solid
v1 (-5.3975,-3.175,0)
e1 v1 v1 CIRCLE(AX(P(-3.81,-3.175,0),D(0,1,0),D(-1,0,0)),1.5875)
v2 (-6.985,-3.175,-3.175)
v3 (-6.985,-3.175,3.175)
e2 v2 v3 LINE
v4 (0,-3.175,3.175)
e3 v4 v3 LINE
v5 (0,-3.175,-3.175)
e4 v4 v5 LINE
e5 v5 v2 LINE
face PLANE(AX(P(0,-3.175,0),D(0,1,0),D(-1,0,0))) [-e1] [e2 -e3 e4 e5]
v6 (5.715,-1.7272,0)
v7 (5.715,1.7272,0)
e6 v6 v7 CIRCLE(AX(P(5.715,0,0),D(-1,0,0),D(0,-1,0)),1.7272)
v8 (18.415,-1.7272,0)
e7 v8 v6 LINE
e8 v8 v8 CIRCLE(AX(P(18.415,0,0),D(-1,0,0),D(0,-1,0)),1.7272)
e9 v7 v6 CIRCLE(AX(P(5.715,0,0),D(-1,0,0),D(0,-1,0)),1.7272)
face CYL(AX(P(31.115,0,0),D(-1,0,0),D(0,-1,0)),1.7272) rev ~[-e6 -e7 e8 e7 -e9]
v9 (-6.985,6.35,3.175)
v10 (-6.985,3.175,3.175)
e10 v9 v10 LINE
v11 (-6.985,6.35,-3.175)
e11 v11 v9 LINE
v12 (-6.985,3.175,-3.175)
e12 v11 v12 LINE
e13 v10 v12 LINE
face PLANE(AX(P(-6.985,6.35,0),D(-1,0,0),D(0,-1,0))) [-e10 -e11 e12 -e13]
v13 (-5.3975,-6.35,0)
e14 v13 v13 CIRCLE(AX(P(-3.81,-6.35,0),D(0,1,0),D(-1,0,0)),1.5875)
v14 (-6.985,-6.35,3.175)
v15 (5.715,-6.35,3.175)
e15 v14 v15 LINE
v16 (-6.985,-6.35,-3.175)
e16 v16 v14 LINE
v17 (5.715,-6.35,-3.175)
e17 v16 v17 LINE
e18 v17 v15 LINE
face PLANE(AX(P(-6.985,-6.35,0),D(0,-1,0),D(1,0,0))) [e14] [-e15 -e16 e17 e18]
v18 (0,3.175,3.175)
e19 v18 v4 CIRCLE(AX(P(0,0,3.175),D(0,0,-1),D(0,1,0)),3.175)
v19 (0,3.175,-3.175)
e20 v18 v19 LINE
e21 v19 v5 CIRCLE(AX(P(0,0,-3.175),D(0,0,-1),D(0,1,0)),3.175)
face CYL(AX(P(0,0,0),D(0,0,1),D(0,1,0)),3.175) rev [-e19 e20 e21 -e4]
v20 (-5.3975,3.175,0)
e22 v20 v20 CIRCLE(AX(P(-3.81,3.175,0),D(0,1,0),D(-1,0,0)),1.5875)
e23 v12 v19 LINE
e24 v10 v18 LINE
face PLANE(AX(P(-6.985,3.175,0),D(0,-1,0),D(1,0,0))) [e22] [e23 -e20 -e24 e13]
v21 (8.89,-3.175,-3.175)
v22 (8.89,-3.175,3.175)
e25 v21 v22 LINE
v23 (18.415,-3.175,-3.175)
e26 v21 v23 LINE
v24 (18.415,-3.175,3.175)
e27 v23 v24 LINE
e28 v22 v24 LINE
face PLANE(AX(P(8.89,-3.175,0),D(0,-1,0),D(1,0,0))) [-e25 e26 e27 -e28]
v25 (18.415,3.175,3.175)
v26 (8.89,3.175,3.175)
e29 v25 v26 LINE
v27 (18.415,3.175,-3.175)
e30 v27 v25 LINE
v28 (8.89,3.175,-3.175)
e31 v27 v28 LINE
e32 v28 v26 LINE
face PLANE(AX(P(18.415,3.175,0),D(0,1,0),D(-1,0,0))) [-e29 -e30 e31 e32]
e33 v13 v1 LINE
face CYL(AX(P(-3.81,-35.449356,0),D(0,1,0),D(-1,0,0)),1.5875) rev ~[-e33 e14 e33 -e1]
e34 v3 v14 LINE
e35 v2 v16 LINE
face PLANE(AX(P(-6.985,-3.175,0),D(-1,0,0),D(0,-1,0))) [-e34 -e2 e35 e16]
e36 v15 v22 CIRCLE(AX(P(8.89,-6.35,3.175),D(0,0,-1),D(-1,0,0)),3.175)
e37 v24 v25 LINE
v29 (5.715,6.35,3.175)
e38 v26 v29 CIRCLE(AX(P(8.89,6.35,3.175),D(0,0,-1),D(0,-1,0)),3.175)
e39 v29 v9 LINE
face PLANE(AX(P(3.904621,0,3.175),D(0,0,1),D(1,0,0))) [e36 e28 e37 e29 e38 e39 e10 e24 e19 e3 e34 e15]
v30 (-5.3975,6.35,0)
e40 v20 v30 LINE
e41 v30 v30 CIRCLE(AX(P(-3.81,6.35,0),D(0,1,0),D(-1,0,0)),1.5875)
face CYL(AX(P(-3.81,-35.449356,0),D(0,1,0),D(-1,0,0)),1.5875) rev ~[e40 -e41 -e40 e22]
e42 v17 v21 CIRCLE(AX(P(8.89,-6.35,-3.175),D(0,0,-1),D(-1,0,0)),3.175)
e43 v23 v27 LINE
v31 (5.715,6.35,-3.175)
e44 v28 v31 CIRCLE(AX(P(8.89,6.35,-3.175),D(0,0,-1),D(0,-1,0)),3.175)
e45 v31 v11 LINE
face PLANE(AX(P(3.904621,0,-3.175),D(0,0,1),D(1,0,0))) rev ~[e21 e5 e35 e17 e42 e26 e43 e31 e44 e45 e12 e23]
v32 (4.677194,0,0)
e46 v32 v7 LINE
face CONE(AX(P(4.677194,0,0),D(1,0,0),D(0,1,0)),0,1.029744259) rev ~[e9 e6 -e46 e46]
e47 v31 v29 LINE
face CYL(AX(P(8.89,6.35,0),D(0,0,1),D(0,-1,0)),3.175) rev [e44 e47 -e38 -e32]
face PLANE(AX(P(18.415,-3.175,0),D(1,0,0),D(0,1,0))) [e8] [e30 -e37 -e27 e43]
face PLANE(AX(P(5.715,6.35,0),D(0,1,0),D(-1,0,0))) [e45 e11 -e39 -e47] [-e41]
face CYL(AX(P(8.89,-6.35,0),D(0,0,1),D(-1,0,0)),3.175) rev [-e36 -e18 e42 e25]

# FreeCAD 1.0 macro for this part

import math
import FreeCAD as App
import Part
import Sketcher
Q = App.Units.Quantity

doc = App.newDocument("Part")
body = doc.addObject("PartDesign::Body", "Body")

# Sketch on XY plane
sketch1 = body.newObject("Sketcher::SketchObject", "Sketch")
sketch1.AttachmentSupport = (doc.getObject("XY_Plane"), [""])
sketch1.MapMode = "FlatFace"
sketch1.addGeometry(Part.LineSegment(App.Vector(0, -3.2, 0), App.Vector(-7, -3.2, 0)), False)
sketch1.addGeometry(Part.LineSegment(App.Vector(-7, -3.2, 0), App.Vector(-7, -6.3, 0)), False)
sketch1.addGeometry(Part.LineSegment(App.Vector(-7, -6.3, 0), App.Vector(5.7, -6.3, 0)), False)
sketch1.addGeometry(Part.ArcOfCircle(Part.Circle(App.Vector(8.9, -6.3, 0), App.Vector(0, 0, 1), 3.2), math.radians(90), math.radians(180)), False)
sketch1.addGeometry(Part.LineSegment(App.Vector(8.9, -3.2, 0), App.Vector(18.4, -3.2, 0)), False)
sketch1.addGeometry(Part.LineSegment(App.Vector(18.4, -3.2, 0), App.Vector(18.4, 3.2, 0)), False)
sketch1.addGeometry(Part.LineSegment(App.Vector(18.4, 3.2, 0), App.Vector(8.9, 3.2, 0)), False)
sketch1.addGeometry(Part.ArcOfCircle(Part.Circle(App.Vector(8.9, 6.3, 0), App.Vector(0, 0, 1), 3.2), math.radians(180), math.radians(270)), False)
sketch1.addGeometry(Part.LineSegment(App.Vector(5.7, 6.3, 0), App.Vector(-7, 6.3, 0)), False)
sketch1.addGeometry(Part.LineSegment(App.Vector(-7, 6.3, 0), App.Vector(-7, 3.2, 0)), False)
sketch1.addGeometry(Part.LineSegment(App.Vector(-7, 3.2, 0), App.Vector(0, 3.2, 0)), False)
sketch1.addGeometry(Part.ArcOfCircle(Part.Circle(App.Vector(0, 0, 0), App.Vector(0, 0, 1), 3.2), math.radians(-90), math.radians(90)), False)
sketch1.addConstraint(Sketcher.Constraint("Coincident", 0, 2, 1, 1))
sketch1.addConstraint(Sketcher.Constraint("Coincident", 1, 2, 2, 1))
sketch1.addConstraint(Sketcher.Constraint("Coincident", 2, 2, 3, 2))
sketch1.addConstraint(Sketcher.Constraint("Tangent", 3, 1, 4, 1))
sketch1.addConstraint(Sketcher.Constraint("Coincident", 4, 2, 5, 1))
sketch1.addConstraint(Sketcher.Constraint("Coincident", 5, 2, 6, 1))
sketch1.addConstraint(Sketcher.Constraint("Tangent", 6, 2, 7, 2))
sketch1.addConstraint(Sketcher.Constraint("Coincident", 7, 1, 8, 1))
sketch1.addConstraint(Sketcher.Constraint("Coincident", 8, 2, 9, 1))
sketch1.addConstraint(Sketcher.Constraint("Coincident", 9, 2, 10, 1))
sketch1.addConstraint(Sketcher.Constraint("Tangent", 10, 2, 11, 2))
sketch1.addConstraint(Sketcher.Constraint("Tangent", 11, 1, 0, 1))
sketch1.addConstraint(Sketcher.Constraint("Horizontal", 0))
sketch1.addConstraint(Sketcher.Constraint("Vertical", 1))
sketch1.addConstraint(Sketcher.Constraint("Horizontal", 2))
sketch1.addConstraint(Sketcher.Constraint("Horizontal", 4))
sketch1.addConstraint(Sketcher.Constraint("Vertical", 5))
sketch1.addConstraint(Sketcher.Constraint("Horizontal", 6))
sketch1.addConstraint(Sketcher.Constraint("Horizontal", 8))
sketch1.addConstraint(Sketcher.Constraint("Vertical", 9))
sketch1.addConstraint(Sketcher.Constraint("Horizontal", 10))
sketch1.addConstraint(Sketcher.Constraint("Coincident", 11, 3, -1, 1))
sketch1.addConstraint(Sketcher.Constraint("Equal", 3, 7))
sketch1.addConstraint(Sketcher.Constraint("Equal", 7, 11))
sketch1.addConstraint(Sketcher.Constraint("Symmetric", 3, 3, 7, 3, -1))
sketch1.addConstraint(Sketcher.Constraint("Symmetric", 1, 2, 8, 2, -1))
sketch1.addConstraint(Sketcher.Constraint("Horizontal", 3, 3, 1, 2))
sketch1.addConstraint(Sketcher.Constraint("Horizontal", 0, 2, 3, 1))
sketch1.addConstraint(Sketcher.Constraint("DistanceX", 2, 1, 2, 2, Q("0.5 in")))
sketch1.addConstraint(Sketcher.Constraint("Radius", 3, Q("0.125 in")))
sketch1.addConstraint(Sketcher.Constraint("DistanceX", 2, 2, 4, 2, Q("0.5 in")))
sketch1.addConstraint(Sketcher.Constraint("DistanceX", 0, 2, 0, 1, Q("0.275 in")))
pad1 = body.newObject("PartDesign::Pad", "Pad")
pad1.Profile = sketch1
pad1.Length = Q("0.25 in")
pad1.Midplane = True

# Sketch on YZ plane
sketch2 = body.newObject("Sketcher::SketchObject", "Sketch001")
sketch2.AttachmentSupport = (doc.getObject("YZ_Plane"), [""])
sketch2.MapMode = "FlatFace"
sketch2.AttachmentOffset = App.Placement(App.Vector(0, 0, 0.725 * 25.4), App.Rotation())
sketch2.addGeometry(Part.Circle(App.Vector(0, 0, 0), App.Vector(0, 0, 1), 1.7), False)
sketch2.addConstraint(Sketcher.Constraint("Coincident", 0, 3, -1, 1))
sketch2.addConstraint(Sketcher.Constraint("Diameter", 0, Q("0.136 in")))
doc.recompute()
hole = body.newObject("PartDesign::Hole", "Hole")
hole.Profile = sketch2
hole.ThreadType = "None"
hole.Diameter = Q("0.136 in")
hole.DepthType = "Dimension"
hole.Depth = Q("0.5 in")
hole.DrillPoint = "Angled"
hole.DrillPointAngle = 118

# Sketch on XZ plane
sketch3 = body.newObject("Sketcher::SketchObject", "Sketch002")
sketch3.AttachmentSupport = (doc.getObject("XZ_Plane"), [""])
sketch3.MapMode = "FlatFace"
sketch3.AttachmentOffset = App.Placement(App.Vector(0, 0, 0.25 * 25.4), App.Rotation())
sketch3.addGeometry(Part.Circle(App.Vector(-3.8, 0, 0), App.Vector(0, 0, 1), 1.6), False)
sketch3.addConstraint(Sketcher.Constraint("PointOnObject", 0, 3, -1))
sketch3.addConstraint(Sketcher.Constraint("Diameter", 0, Q("0.125 in")))
sketch3.addConstraint(Sketcher.Constraint("DistanceX", 0, 3, -1, 1, Q("0.15 in")))
doc.recompute()
hole2 = body.newObject("PartDesign::Hole", "Hole001")
hole2.Profile = sketch3
hole2.ThreadType = "None"
hole2.Diameter = Q("0.125 in")
hole2.DepthType = "ThroughAll"

doc.recompute()
